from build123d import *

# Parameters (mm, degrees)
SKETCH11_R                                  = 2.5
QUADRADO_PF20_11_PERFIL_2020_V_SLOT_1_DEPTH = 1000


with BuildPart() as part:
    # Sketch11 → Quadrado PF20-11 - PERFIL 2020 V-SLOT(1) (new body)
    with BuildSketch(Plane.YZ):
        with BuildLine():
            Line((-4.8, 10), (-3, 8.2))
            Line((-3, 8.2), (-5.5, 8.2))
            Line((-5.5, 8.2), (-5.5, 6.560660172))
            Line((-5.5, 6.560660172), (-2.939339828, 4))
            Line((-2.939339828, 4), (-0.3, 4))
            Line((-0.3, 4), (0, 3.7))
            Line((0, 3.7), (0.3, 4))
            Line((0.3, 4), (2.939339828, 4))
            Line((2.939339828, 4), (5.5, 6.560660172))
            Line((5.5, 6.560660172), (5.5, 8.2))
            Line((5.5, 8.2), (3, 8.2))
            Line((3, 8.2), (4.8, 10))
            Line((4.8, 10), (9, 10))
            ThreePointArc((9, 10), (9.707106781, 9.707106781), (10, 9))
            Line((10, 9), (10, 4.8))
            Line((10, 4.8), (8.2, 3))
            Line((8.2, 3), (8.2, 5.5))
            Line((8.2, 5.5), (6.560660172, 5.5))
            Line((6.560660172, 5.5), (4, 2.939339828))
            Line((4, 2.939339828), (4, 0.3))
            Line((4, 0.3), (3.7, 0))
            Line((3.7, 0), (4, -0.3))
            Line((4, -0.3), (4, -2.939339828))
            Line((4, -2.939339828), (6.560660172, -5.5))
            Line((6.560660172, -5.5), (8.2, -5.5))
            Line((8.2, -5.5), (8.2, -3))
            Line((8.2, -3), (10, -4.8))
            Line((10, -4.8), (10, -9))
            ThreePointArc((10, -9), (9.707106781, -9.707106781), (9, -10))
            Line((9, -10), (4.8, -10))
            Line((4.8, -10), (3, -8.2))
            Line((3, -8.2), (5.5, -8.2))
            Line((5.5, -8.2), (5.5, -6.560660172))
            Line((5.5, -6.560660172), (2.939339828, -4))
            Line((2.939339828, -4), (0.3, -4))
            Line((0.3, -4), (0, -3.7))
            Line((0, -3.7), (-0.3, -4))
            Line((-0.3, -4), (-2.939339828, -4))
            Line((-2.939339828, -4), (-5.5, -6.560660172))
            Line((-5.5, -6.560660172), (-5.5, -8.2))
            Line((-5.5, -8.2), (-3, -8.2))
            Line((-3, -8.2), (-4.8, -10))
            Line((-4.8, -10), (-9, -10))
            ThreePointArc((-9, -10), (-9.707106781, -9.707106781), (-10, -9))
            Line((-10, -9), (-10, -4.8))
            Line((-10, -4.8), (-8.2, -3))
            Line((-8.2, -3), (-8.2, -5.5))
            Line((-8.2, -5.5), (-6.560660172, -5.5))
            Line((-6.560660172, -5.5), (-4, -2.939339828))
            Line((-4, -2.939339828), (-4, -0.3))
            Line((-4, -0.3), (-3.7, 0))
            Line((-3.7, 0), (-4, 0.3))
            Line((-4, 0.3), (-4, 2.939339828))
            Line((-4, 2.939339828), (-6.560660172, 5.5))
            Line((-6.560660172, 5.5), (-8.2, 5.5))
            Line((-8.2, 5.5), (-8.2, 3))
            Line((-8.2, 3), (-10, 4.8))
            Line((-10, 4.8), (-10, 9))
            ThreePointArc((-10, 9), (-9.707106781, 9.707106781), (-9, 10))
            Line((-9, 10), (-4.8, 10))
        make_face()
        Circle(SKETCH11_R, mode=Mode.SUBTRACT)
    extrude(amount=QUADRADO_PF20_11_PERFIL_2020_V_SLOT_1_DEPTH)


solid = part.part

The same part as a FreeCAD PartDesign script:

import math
import FreeCAD as App
import Part
import Sketcher
Q = App.Units.Quantity

doc = App.newDocument("Part")
body = doc.addObject("PartDesign::Body", "Body")

# Sketch on YZ plane
sketch1 = doc.addObject("Sketcher::SketchObject", "Sketch")
body.addObject(sketch1)
sketch1.AttachmentSupport = (doc.YZ_Plane, [""])
sketch1.MapMode = "FlatFace"
sketch1.addGeometry(Part.LineSegment(App.Vector(-3, 8.2, 0), App.Vector(-4.8, 10, 0)), False)
sketch1.addGeometry(Part.LineSegment(App.Vector(-4.8, 10, 0), App.Vector(-9, 10, 0)), False)
sketch1.addGeometry(Part.ArcOfCircle(Part.Circle(App.Vector(-9, 9, 0), App.Vector(0, 0, 1), 1), math.radians(90), math.radians(180)), False)
sketch1.addGeometry(Part.LineSegment(App.Vector(-10, 9, 0), App.Vector(-10, 4.8, 0)), False)
sketch1.addGeometry(Part.LineSegment(App.Vector(-10, 4.8, 0), App.Vector(-8.2, 3, 0)), False)
sketch1.addGeometry(Part.LineSegment(App.Vector(-8.2, 3, 0), App.Vector(-8.2, 5.5, 0)), False)
sketch1.addGeometry(Part.LineSegment(App.Vector(-8.2, 5.5, 0), App.Vector(-6.56066, 5.5, 0)), False)
sketch1.addGeometry(Part.LineSegment(App.Vector(-6.56066, 5.5, 0), App.Vector(-4, 2.93934, 0)), False)
sketch1.addGeometry(Part.LineSegment(App.Vector(-4, 2.93934, 0), App.Vector(-4, 0.3, 0)), False)
sketch1.addGeometry(Part.LineSegment(App.Vector(-4, 0.3, 0), App.Vector(-3.7, 0, 0)), False)
sketch1.addGeometry(Part.LineSegment(App.Vector(-3.7, 0, 0), App.Vector(-4, -0.3, 0)), False)
sketch1.addGeometry(Part.LineSegment(App.Vector(-4, -0.3, 0), App.Vector(-4, -2.93934, 0)), False)
sketch1.addGeometry(Part.LineSegment(App.Vector(-4, -2.93934, 0), App.Vector(-6.56066, -5.5, 0)), False)
sketch1.addGeometry(Part.LineSegment(App.Vector(-6.56066, -5.5, 0), App.Vector(-8.2, -5.5, 0)), False)
sketch1.addGeometry(Part.LineSegment(App.Vector(-8.2, -5.5, 0), App.Vector(-8.2, -3, 0)), False)
sketch1.addGeometry(Part.LineSegment(App.Vector(-8.2, -3, 0), App.Vector(-10, -4.8, 0)), False)
sketch1.addGeometry(Part.LineSegment(App.Vector(-10, -4.8, 0), App.Vector(-10, -9, 0)), False)
sketch1.addGeometry(Part.ArcOfCircle(Part.Circle(App.Vector(-9, -9, 0), App.Vector(0, 0, 1), 1), math.radians(-180), math.radians(-90)), False)
sketch1.addGeometry(Part.LineSegment(App.Vector(-9, -10, 0), App.Vector(-4.8, -10, 0)), False)
sketch1.addGeometry(Part.LineSegment(App.Vector(-4.8, -10, 0), App.Vector(-3, -8.2, 0)), False)
sketch1.addGeometry(Part.LineSegment(App.Vector(-3, -8.2, 0), App.Vector(-5.5, -8.2, 0)), False)
sketch1.addGeometry(Part.LineSegment(App.Vector(-5.5, -8.2, 0), App.Vector(-5.5, -6.56066, 0)), False)
sketch1.addGeometry(Part.LineSegment(App.Vector(-5.5, -6.56066, 0), App.Vector(-2.93934, -4, 0)), False)
sketch1.addGeometry(Part.LineSegment(App.Vector(-2.93934, -4, 0), App.Vector(-0.3, -4, 0)), False)
sketch1.addGeometry(Part.LineSegment(App.Vector(-0.3, -4, 0), App.Vector(0, -3.7, 0)), False)
sketch1.addGeometry(Part.LineSegment(App.Vector(0, -3.7, 0), App.Vector(0.3, -4, 0)), False)
sketch1.addGeometry(Part.LineSegment(App.Vector(0.3, -4, 0), App.Vector(2.93934, -4, 0)), False)
sketch1.addGeometry(Part.LineSegment(App.Vector(2.93934, -4, 0), App.Vector(5.5, -6.56066, 0)), False)
sketch1.addGeometry(Part.LineSegment(App.Vector(5.5, -6.56066, 0), App.Vector(5.5, -8.2, 0)), False)
sketch1.addGeometry(Part.LineSegment(App.Vector(5.5, -8.2, 0), App.Vector(3, -8.2, 0)), False)
sketch1.addGeometry(Part.LineSegment(App.Vector(3, -8.2, 0), App.Vector(4.8, -10, 0)), False)
sketch1.addGeometry(Part.LineSegment(App.Vector(4.8, -10, 0), App.Vector(9, -10, 0)), False)
sketch1.addGeometry(Part.ArcOfCircle(Part.Circle(App.Vector(9, -9, 0), App.Vector(0, 0, 1), 1), math.radians(-90), math.radians(0)), False)
sketch1.addGeometry(Part.LineSegment(App.Vector(10, -9, 0), App.Vector(10, -4.8, 0)), False)
sketch1.addGeometry(Part.LineSegment(App.Vector(10, -4.8, 0), App.Vector(8.2, -3, 0)), False)
sketch1.addGeometry(Part.LineSegment(App.Vector(8.2, -3, 0), App.Vector(8.2, -5.5, 0)), False)
sketch1.addGeometry(Part.LineSegment(App.Vector(8.2, -5.5, 0), App.Vector(6.56066, -5.5, 0)), False)
sketch1.addGeometry(Part.LineSegment(App.Vector(6.56066, -5.5, 0), App.Vector(4, -2.93934, 0)), False)
sketch1.addGeometry(Part.LineSegment(App.Vector(4, -2.93934, 0), App.Vector(4, -0.3, 0)), False)
sketch1.addGeometry(Part.LineSegment(App.Vector(4, -0.3, 0), App.Vector(3.7, 0, 0)), False)
sketch1.addGeometry(Part.LineSegment(App.Vector(3.7, 0, 0), App.Vector(4, 0.3, 0)), False)
sketch1.addGeometry(Part.LineSegment(App.Vector(4, 0.3, 0), App.Vector(4, 2.93934, 0)), False)
sketch1.addGeometry(Part.LineSegment(App.Vector(4, 2.93934, 0), App.Vector(6.56066, 5.5, 0)), False)
sketch1.addGeometry(Part.LineSegment(App.Vector(6.56066, 5.5, 0), App.Vector(8.2, 5.5, 0)), False)
sketch1.addGeometry(Part.LineSegment(App.Vector(8.2, 5.5, 0), App.Vector(8.2, 3, 0)), False)
sketch1.addGeometry(Part.LineSegment(App.Vector(8.2, 3, 0), App.Vector(10, 4.8, 0)), False)
sketch1.addGeometry(Part.LineSegment(App.Vector(10, 4.8, 0), App.Vector(10, 9, 0)), False)
sketch1.addGeometry(Part.ArcOfCircle(Part.Circle(App.Vector(9, 9, 0), App.Vector(0, 0, 1), 1), math.radians(0), math.radians(90)), False)
sketch1.addGeometry(Part.LineSegment(App.Vector(9, 10, 0), App.Vector(4.8, 10, 0)), False)
sketch1.addGeometry(Part.LineSegment(App.Vector(4.8, 10, 0), App.Vector(3, 8.2, 0)), False)
sketch1.addGeometry(Part.LineSegment(App.Vector(3, 8.2, 0), App.Vector(5.5, 8.2, 0)), False)
sketch1.addGeometry(Part.LineSegment(App.Vector(5.5, 8.2, 0), App.Vector(5.5, 6.56066, 0)), False)
sketch1.addGeometry(Part.LineSegment(App.Vector(5.5, 6.56066, 0), App.Vector(2.93934, 4, 0)), False)
sketch1.addGeometry(Part.LineSegment(App.Vector(2.93934, 4, 0), App.Vector(0.3, 4, 0)), False)
sketch1.addGeometry(Part.LineSegment(App.Vector(0.3, 4, 0), App.Vector(0, 3.7, 0)), False)
sketch1.addGeometry(Part.LineSegment(App.Vector(0, 3.7, 0), App.Vector(-0.3, 4, 0)), False)
sketch1.addGeometry(Part.LineSegment(App.Vector(-0.3, 4, 0), App.Vector(-2.93934, 4, 0)), False)
sketch1.addGeometry(Part.LineSegment(App.Vector(-2.93934, 4, 0), App.Vector(-5.5, 6.56066, 0)), False)
sketch1.addGeometry(Part.LineSegment(App.Vector(-5.5, 6.56066, 0), App.Vector(-5.5, 8.2, 0)), False)
sketch1.addGeometry(Part.LineSegment(App.Vector(-5.5, 8.2, 0), App.Vector(-3, 8.2, 0)), False)
sketch1.addGeometry(Part.Circle(App.Vector(0, 0, 0), App.Vector(0, 0, 1), 2.5), False)
sketch1.addConstraint(Sketcher.Constraint("Coincident", 0, 2, 1, 1))
sketch1.addConstraint(Sketcher.Constraint("Tangent", 1, 2, 2, 1))
sketch1.addConstraint(Sketcher.Constraint("Tangent", 2, 2, 3, 1))
sketch1.addConstraint(Sketcher.Constraint("Coincident", 3, 2, 4, 1))
sketch1.addConstraint(Sketcher.Constraint("Coincident", 4, 2, 5, 1))
sketch1.addConstraint(Sketcher.Constraint("Coincident", 5, 2, 6, 1))
sketch1.addConstraint(Sketcher.Constraint("Coincident", 6, 2, 7, 1))
sketch1.addConstraint(Sketcher.Constraint("Coincident", 7, 2, 8, 1))
sketch1.addConstraint(Sketcher.Constraint("Coincident", 8, 2, 9, 1))
sketch1.addConstraint(Sketcher.Constraint("Coincident", 9, 2, 10, 1))
sketch1.addConstraint(Sketcher.Constraint("Coincident", 10, 2, 11, 1))
sketch1.addConstraint(Sketcher.Constraint("Coincident", 11, 2, 12, 1))
sketch1.addConstraint(Sketcher.Constraint("Coincident", 12, 2, 13, 1))
sketch1.addConstraint(Sketcher.Constraint("Coincident", 13, 2, 14, 1))
sketch1.addConstraint(Sketcher.Constraint("Coincident", 14, 2, 15, 1))
sketch1.addConstraint(Sketcher.Constraint("Coincident", 15, 2, 16, 1))
sketch1.addConstraint(Sketcher.Constraint("Tangent", 16, 2, 17, 1))
sketch1.addConstraint(Sketcher.Constraint("Tangent", 17, 2, 18, 1))
sketch1.addConstraint(Sketcher.Constraint("Coincident", 18, 2, 19, 1))
sketch1.addConstraint(Sketcher.Constraint("Coincident", 19, 2, 20, 1))
sketch1.addConstraint(Sketcher.Constraint("Coincident", 20, 2, 21, 1))
sketch1.addConstraint(Sketcher.Constraint("Coincident", 21, 2, 22, 1))
sketch1.addConstraint(Sketcher.Constraint("Coincident", 22, 2, 23, 1))
sketch1.addConstraint(Sketcher.Constraint("Coincident", 23, 2, 24, 1))
sketch1.addConstraint(Sketcher.Constraint("Coincident", 24, 2, 25, 1))
sketch1.addConstraint(Sketcher.Constraint("Coincident", 25, 2, 26, 1))
sketch1.addConstraint(Sketcher.Constraint("Coincident", 26, 2, 27, 1))
sketch1.addConstraint(Sketcher.Constraint("Coincident", 27, 2, 28, 1))
sketch1.addConstraint(Sketcher.Constraint("Coincident", 28, 2, 29, 1))
sketch1.addConstraint(Sketcher.Constraint("Coincident", 29, 2, 30, 1))
sketch1.addConstraint(Sketcher.Constraint("Coincident", 30, 2, 31, 1))
sketch1.addConstraint(Sketcher.Constraint("Tangent", 31, 2, 32, 1))
sketch1.addConstraint(Sketcher.Constraint("Tangent", 32, 2, 33, 1))
sketch1.addConstraint(Sketcher.Constraint("Coincident", 33, 2, 34, 1))
sketch1.addConstraint(Sketcher.Constraint("Coincident", 34, 2, 35, 1))
sketch1.addConstraint(Sketcher.Constraint("Coincident", 35, 2, 36, 1))
sketch1.addConstraint(Sketcher.Constraint("Coincident", 36, 2, 37, 1))
sketch1.addConstraint(Sketcher.Constraint("Coincident", 37, 2, 38, 1))
sketch1.addConstraint(Sketcher.Constraint("Coincident", 38, 2, 39, 1))
sketch1.addConstraint(Sketcher.Constraint("Coincident", 39, 2, 40, 1))
sketch1.addConstraint(Sketcher.Constraint("Coincident", 40, 2, 41, 1))
sketch1.addConstraint(Sketcher.Constraint("Coincident", 41, 2, 42, 1))
sketch1.addConstraint(Sketcher.Constraint("Coincident", 42, 2, 43, 1))
sketch1.addConstraint(Sketcher.Constraint("Coincident", 43, 2, 44, 1))
sketch1.addConstraint(Sketcher.Constraint("Coincident", 44, 2, 45, 1))
sketch1.addConstraint(Sketcher.Constraint("Coincident", 45, 2, 46, 1))
sketch1.addConstraint(Sketcher.Constraint("Tangent", 46, 2, 47, 1))
sketch1.addConstraint(Sketcher.Constraint("Tangent", 47, 2, 48, 1))
sketch1.addConstraint(Sketcher.Constraint("Coincident", 48, 2, 49, 1))
sketch1.addConstraint(Sketcher.Constraint("Coincident", 49, 2, 50, 1))
sketch1.addConstraint(Sketcher.Constraint("Coincident", 50, 2, 51, 1))
sketch1.addConstraint(Sketcher.Constraint("Coincident", 51, 2, 52, 1))
sketch1.addConstraint(Sketcher.Constraint("Coincident", 52, 2, 53, 1))
sketch1.addConstraint(Sketcher.Constraint("Coincident", 53, 2, 54, 1))
sketch1.addConstraint(Sketcher.Constraint("Coincident", 54, 2, 55, 1))
sketch1.addConstraint(Sketcher.Constraint("Coincident", 55, 2, 56, 1))
sketch1.addConstraint(Sketcher.Constraint("Coincident", 56, 2, 57, 1))
sketch1.addConstraint(Sketcher.Constraint("Coincident", 57, 2, 58, 1))
sketch1.addConstraint(Sketcher.Constraint("Coincident", 58, 2, 59, 1))
sketch1.addConstraint(Sketcher.Constraint("Coincident", 59, 2, 0, 1))
sketch1.addConstraint(Sketcher.Constraint("Horizontal", 1))
sketch1.addConstraint(Sketcher.Constraint("Vertical", 3))
sketch1.addConstraint(Sketcher.Constraint("Vertical", 5))
sketch1.addConstraint(Sketcher.Constraint("Horizontal", 6))
sketch1.addConstraint(Sketcher.Constraint("Vertical", 8))
sketch1.addConstraint(Sketcher.Constraint("Vertical", 11))
sketch1.addConstraint(Sketcher.Constraint("Horizontal", 13))
sketch1.addConstraint(Sketcher.Constraint("Vertical", 14))
sketch1.addConstraint(Sketcher.Constraint("Vertical", 16))
sketch1.addConstraint(Sketcher.Constraint("Horizontal", 18))
sketch1.addConstraint(Sketcher.Constraint("Horizontal", 20))
sketch1.addConstraint(Sketcher.Constraint("Vertical", 21))
sketch1.addConstraint(Sketcher.Constraint("Horizontal", 23))
sketch1.addConstraint(Sketcher.Constraint("Horizontal", 26))
sketch1.addConstraint(Sketcher.Constraint("Vertical", 28))
sketch1.addConstraint(Sketcher.Constraint("Horizontal", 29))
sketch1.addConstraint(Sketcher.Constraint("Horizontal", 31))
sketch1.addConstraint(Sketcher.Constraint("Vertical", 33))
sketch1.addConstraint(Sketcher.Constraint("Vertical", 35))
sketch1.addConstraint(Sketcher.Constraint("Horizontal", 36))
sketch1.addConstraint(Sketcher.Constraint("Vertical", 38))
sketch1.addConstraint(Sketcher.Constraint("Vertical", 41))
sketch1.addConstraint(Sketcher.Constraint("Horizontal", 43))
sketch1.addConstraint(Sketcher.Constraint("Vertical", 44))
sketch1.addConstraint(Sketcher.Constraint("Vertical", 46))
sketch1.addConstraint(Sketcher.Constraint("Horizontal", 48))
sketch1.addConstraint(Sketcher.Constraint("Horizontal", 50))
sketch1.addConstraint(Sketcher.Constraint("Vertical", 51))
sketch1.addConstraint(Sketcher.Constraint("Horizontal", 53))
sketch1.addConstraint(Sketcher.Constraint("Horizontal", 56))
sketch1.addConstraint(Sketcher.Constraint("Vertical", 58))
sketch1.addConstraint(Sketcher.Constraint("Horizontal", 59))
sketch1.addConstraint(Sketcher.Constraint("Coincident", 60, 3, -1, 1))
sketch1.addConstraint(Sketcher.Constraint("Equal", 2, 17))
sketch1.addConstraint(Sketcher.Constraint("Equal", 17, 32))
sketch1.addConstraint(Sketcher.Constraint("Equal", 32, 47))
sketch1.addConstraint(Sketcher.Constraint("Symmetric", 2, 3, 32, 3, -1, 1))
sketch1.addConstraint(Sketcher.Constraint("Symmetric", 17, 3, 47, 3, -1, 1))
sketch1.addConstraint(Sketcher.Constraint("Symmetric", 4, 2, 34, 2, -1, 1))
sketch1.addConstraint(Sketcher.Constraint("Symmetric", 6, 2, 36, 2, -1, 1))
sketch1.addConstraint(Sketcher.Constraint("Symmetric", 7, 2, 37, 2, -1, 1))
sketch1.addConstraint(Sketcher.Constraint("Symmetric", 9, 2, 39, 2, -1, 1))
sketch1.addConstraint(Sketcher.Constraint("Symmetric", 10, 2, 40, 2, -1, 1))
sketch1.addConstraint(Sketcher.Constraint("Symmetric", 12, 2, 42, 2, -1, 1))
sketch1.addConstraint(Sketcher.Constraint("Symmetric", 14, 2, 44, 2, -1, 1))
sketch1.addConstraint(Sketcher.Constraint("Symmetric", 19, 2, 49, 2, -1, 1))
sketch1.addConstraint(Sketcher.Constraint("Symmetric", 21, 2, 51, 2, -1, 1))
sketch1.addConstraint(Sketcher.Constraint("Symmetric", 22, 2, 52, 2, -1, 1))
sketch1.addConstraint(Sketcher.Constraint("Symmetric", 24, 2, 54, 2, -1, 1))
sketch1.addConstraint(Sketcher.Constraint("Symmetric", 25, 2, 55, 2, -1, 1))
sketch1.addConstraint(Sketcher.Constraint("Symmetric", 27, 2, 57, 2, -1, 1))
sketch1.addConstraint(Sketcher.Constraint("Symmetric", 29, 2, 59, 2, -1, 1))
sketch1.addConstraint(Sketcher.Constraint("Symmetric", 17, 3, 32, 3, -2))
sketch1.addConstraint(Sketcher.Constraint("Symmetric", 23, 2, 25, 2, -2))
sketch1.addConstraint(Sketcher.Constraint("Symmetric", 21, 2, 27, 2, -2))
sketch1.addConstraint(Sketcher.Constraint("Symmetric", 19, 2, 29, 2, -2))
sketch1.addConstraint(Sketcher.Constraint("Symmetric", 14, 2, 34, 2, -2))
sketch1.addConstraint(Sketcher.Constraint("Symmetric", 12, 2, 36, 2, -2))
sketch1.addConstraint(Sketcher.Constraint("Symmetric", 11, 2, 37, 2, -2))
sketch1.addConstraint(Sketcher.Constraint("PointOnObject", 9, 2, -1))
sketch1.addConstraint(Sketcher.Constraint("PointOnObject", 24, 2, -2))
sketch1.addConstraint(Sketcher.Constraint("Parallel", 0, 4))
sketch1.addConstraint(Sketcher.Constraint("Parallel", 4, 7))
sketch1.addConstraint(Sketcher.Constraint("Parallel", 7, 9))
sketch1.addConstraint(Sketcher.Constraint("Perpendicular", 9, 10))
sketch1.addConstraint(Sketcher.Constraint("Parallel", 10, 12))
sketch1.addConstraint(Sketcher.Constraint("Parallel", 12, 15))
sketch1.addConstraint(Sketcher.Constraint("Parallel", 15, 19))
sketch1.addConstraint(Sketcher.Constraint("Parallel", 19, 22))
sketch1.addConstraint(Sketcher.Constraint("Parallel", 22, 24))
sketch1.addConstraint(Sketcher.Constraint("Parallel", 25, 27))
sketch1.addConstraint(Sketcher.Constraint("Parallel", 27, 30))
sketch1.addConstraint(Sketcher.Constraint("Parallel", 30, 34))
sketch1.addConstraint(Sketcher.Constraint("Parallel", 37, 39))
sketch1.addConstraint(Sketcher.Constraint("Parallel", 40, 42))
sketch1.addConstraint(Sketcher.Constraint("Parallel", 42, 45))
sketch1.addConstraint(Sketcher.Constraint("Parallel", 45, 49))
sketch1.addConstraint(Sketcher.Constraint("Parallel", 52, 54))
sketch1.addConstraint(Sketcher.Constraint("Parallel", 55, 57))
sketch1.addConstraint(Sketcher.Constraint("Equal", 48, 3))
sketch1.addConstraint(Sketcher.Constraint("Equal", 59, 5))
sketch1.addConstraint(Sketcher.Constraint("Equal", 56, 8))
sketch1.addConstraint(Sketcher.Constraint("Equal", 43, 21))
sketch1.addConstraint(Sketcher.Constraint("Equal", 0, 4))
sketch1.addConstraint(Sketcher.Constraint("Equal", 12, 22))
sketch1.addConstraint(Sketcher.Constraint("Equal", 10, 24))
sketch1.addConstraint(Sketcher.Constraint("Diameter", 60, Q("5 mm")))
sketch1.addConstraint(Sketcher.Constraint("Radius", 2, Q("1 mm")))
sketch1.addConstraint(Sketcher.Constraint("DistanceX", 1, 2, 1, 1, Q("4.2 mm")))
sketch1.addConstraint(Sketcher.Constraint("DistanceX", 20, 2, 20, 1, Q("2.5 mm")))
sketch1.addConstraint(Sketcher.Constraint("DistanceX", 2, 3, -1, 1, Q("9 mm")))
sketch1.addConstraint(Sketcher.Constraint("DistanceY", -1, 1, 4, 2, Q("3 mm")))
sketch1.addConstraint(Sketcher.Constraint("DistanceX", 7, 2, -1, 1, Q("4 mm")))
sketch1.addConstraint(Sketcher.Constraint("DistanceY", -1, 1, 8, 2, Q("0.3 mm")))
sketch1.addConstraint(Sketcher.Constraint("DistanceX", 6, 1, 6, 2, Q("1.63934 mm")))
pad1 = doc.addObject("PartDesign::Pad", "Pad")
body.addObject(pad1)
pad1.Profile = sketch1
pad1.Length = 1000

doc.recompute()
